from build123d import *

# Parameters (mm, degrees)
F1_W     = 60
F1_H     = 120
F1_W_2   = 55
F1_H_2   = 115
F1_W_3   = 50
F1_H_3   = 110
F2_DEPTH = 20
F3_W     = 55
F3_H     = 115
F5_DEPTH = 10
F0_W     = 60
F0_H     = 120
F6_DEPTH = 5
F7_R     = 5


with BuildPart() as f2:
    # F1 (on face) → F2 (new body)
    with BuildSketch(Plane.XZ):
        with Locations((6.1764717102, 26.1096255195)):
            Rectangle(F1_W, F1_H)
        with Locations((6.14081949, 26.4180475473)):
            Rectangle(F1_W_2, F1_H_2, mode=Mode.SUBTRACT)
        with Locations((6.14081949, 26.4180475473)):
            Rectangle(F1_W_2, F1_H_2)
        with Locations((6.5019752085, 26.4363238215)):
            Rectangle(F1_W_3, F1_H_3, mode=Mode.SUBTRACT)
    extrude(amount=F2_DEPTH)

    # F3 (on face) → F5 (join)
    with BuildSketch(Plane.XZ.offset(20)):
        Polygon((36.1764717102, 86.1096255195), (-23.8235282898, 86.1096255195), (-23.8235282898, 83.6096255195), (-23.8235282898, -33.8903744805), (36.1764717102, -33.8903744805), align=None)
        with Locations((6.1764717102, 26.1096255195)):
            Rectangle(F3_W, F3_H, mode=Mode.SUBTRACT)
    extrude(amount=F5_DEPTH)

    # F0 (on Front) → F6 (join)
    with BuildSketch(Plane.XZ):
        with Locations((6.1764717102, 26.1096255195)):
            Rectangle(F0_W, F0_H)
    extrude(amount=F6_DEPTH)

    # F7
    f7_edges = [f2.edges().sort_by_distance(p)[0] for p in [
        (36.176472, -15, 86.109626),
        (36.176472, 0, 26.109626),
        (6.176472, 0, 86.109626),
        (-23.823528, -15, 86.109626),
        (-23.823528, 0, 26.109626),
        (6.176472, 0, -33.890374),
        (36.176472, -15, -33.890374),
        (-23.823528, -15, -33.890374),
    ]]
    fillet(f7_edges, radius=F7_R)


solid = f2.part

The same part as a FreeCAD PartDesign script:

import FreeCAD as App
import Part
import Sketcher
from FreeCAD import Vector


def edges_at(feature, points):
    """Names of the edges that pass closest to the given points."""
    edges = feature.Shape.Edges
    near = lambda p: min(range(len(edges)), key=lambda i: edges[i].distToShape(Part.Vertex(*p))[0])
    return sorted({f"Edge{near(p) + 1}" for p in points})


def add_polygon(sketch, points):
    """Adds a closed chain of lines whose ends are joined by coincident constraints."""
    first, n = sketch.GeometryCount, len(points)
    for a, b in zip(points, points[1:] + points[:1]):
        sketch.addGeometry(Part.LineSegment(App.Vector(*a, 0), App.Vector(*b, 0)), False)
    for i in range(n):
        sketch.addConstraint(Sketcher.Constraint("Coincident", first + i, 2, first + (i + 1) % n, 1))

doc = App.newDocument("Part")
body = doc.addObject("PartDesign::Body", "Body")

sketch1 = body.newObject("Sketcher::SketchObject", "Sketch")
sketch1.AttachmentSupport = (doc.getObject("XZ_Plane"), [""])
sketch1.MapMode = "FlatFace"
add_polygon(sketch1, [(-23.823528, 86.109626), (-23.823528, -33.890374), (36.176472, -33.890374), (36.176472, 86.109626)])
add_polygon(sketch1, [(31.501975, -28.563676), (-18.498025, -28.563676), (-18.498025, 81.436324), (31.501975, 81.436324)])
sketch1.addConstraint([
    Sketcher.Constraint("Vertical", 0),
    Sketcher.Constraint("Horizontal", 1),
    Sketcher.Constraint("Vertical", 2),
    Sketcher.Constraint("Horizontal", 3),
    Sketcher.Constraint("Horizontal", 4),
    Sketcher.Constraint("Vertical", 5),
    Sketcher.Constraint("Horizontal", 6),
    Sketcher.Constraint("Vertical", 7),
    Sketcher.Constraint("DistanceX", 1, 1, 1, 2, 60.0),
    Sketcher.Constraint("DistanceX", 4, 2, 4, 1, 50.0),
    Sketcher.Constraint("DistanceY", 0, 2, 0, 1, 120.0),
    Sketcher.Constraint("DistanceY", 5, 1, 5, 2, 110.0),
    Sketcher.Constraint("DistanceY", 0, 2, 4, 2, 5.326698),
    Sketcher.Constraint("DistanceX", 0, 2, -1, 1, 23.823528),
    Sketcher.Constraint("DistanceY", 0, 2, -1, 1, 33.890374),
    Sketcher.Constraint("DistanceX", 4, 2, -1, 1, 18.498025),
])
pad1 = body.newObject("PartDesign::Pad", "Pad")
pad1.Profile = sketch1
pad1.Length = 20

sketch2 = body.newObject("Sketcher::SketchObject", "Sketch001")
sketch2.AttachmentSupport = (doc.getObject("XZ_Plane"), [""])
sketch2.MapMode = "FlatFace"
sketch2.AttachmentOffset = App.Placement(Vector(0, 0, 20), App.Rotation())
add_polygon(sketch2, [(36.176472, 86.109626), (-23.823528, 86.109626), (-23.823528, -33.890374), (36.176472, -33.890374)])
add_polygon(sketch2, [(33.676472, -31.390374), (-21.323528, -31.390374), (-21.323528, 83.609626), (33.676472, 83.609626)])
sketch2.addConstraint([
    Sketcher.Constraint("Horizontal", 0),
    Sketcher.Constraint("Vertical", 1),
    Sketcher.Constraint("Horizontal", 2),
    Sketcher.Constraint("Vertical", 3),
    Sketcher.Constraint("Horizontal", 4),
    Sketcher.Constraint("Vertical", 5),
    Sketcher.Constraint("Horizontal", 6),
    Sketcher.Constraint("Vertical", 7),
    Sketcher.Constraint("DistanceX", 0, 2, 0, 1, 60.0),
    Sketcher.Constraint("DistanceX", 4, 2, 4, 1, 55.0),
    Sketcher.Constraint("DistanceY", 1, 2, 1, 1, 120.0),
    Sketcher.Constraint("DistanceY", 5, 1, 5, 2, 115.0),
    Sketcher.Constraint("DistanceX", 1, 2, 4, 2, 2.5),
    Sketcher.Constraint("DistanceY", 1, 2, 4, 2, 2.5),
    Sketcher.Constraint("DistanceX", 0, 2, -1, 1, 23.823528),
    Sketcher.Constraint("DistanceY", -1, 1, 0, 2, 86.109626),
])
pad2 = body.newObject("PartDesign::Pad", "Pad001")
pad2.Profile = sketch2
pad2.Length = 10

sketch3 = body.newObject("Sketcher::SketchObject", "Sketch002")
sketch3.AttachmentSupport = (doc.getObject("XZ_Plane"), [""])
sketch3.MapMode = "FlatFace"
add_polygon(sketch3, [(-23.823528, 86.109626), (-23.823528, -33.890374), (36.176472, -33.890374), (36.176472, 86.109626)])
sketch3.addConstraint([
    Sketcher.Constraint("Vertical", 0),
    Sketcher.Constraint("Horizontal", 1),
    Sketcher.Constraint("Vertical", 2),
    Sketcher.Constraint("Horizontal", 3),
    Sketcher.Constraint("DistanceX", 1, 1, 1, 2, 60.0),
    Sketcher.Constraint("DistanceY", 0, 2, 0, 1, 120.0),
    Sketcher.Constraint("DistanceX", 0, 2, -1, 1, 23.823528),
    Sketcher.Constraint("DistanceY", 0, 2, -1, 1, 33.890374),
])
pad3 = body.newObject("PartDesign::Pad", "Pad002")
pad3.Profile = sketch3
pad3.Length = 5
doc.recompute()

fillet = body.newObject("PartDesign::Fillet", "Fillet")
fillet.Base = (pad3, edges_at(pad3, [
    (36.176, -15, 86.11),
    (36.176, 0, 26.11),
    (6.176, 0, 86.11),
    (-23.824, -15, 86.11),
    (-23.824, 0, 26.11),
    (6.176, 0, -33.89),
    (36.176, -15, -33.89),
    (-23.824, -15, -33.89),
]))
fillet.Radius = 5

doc.recompute()
